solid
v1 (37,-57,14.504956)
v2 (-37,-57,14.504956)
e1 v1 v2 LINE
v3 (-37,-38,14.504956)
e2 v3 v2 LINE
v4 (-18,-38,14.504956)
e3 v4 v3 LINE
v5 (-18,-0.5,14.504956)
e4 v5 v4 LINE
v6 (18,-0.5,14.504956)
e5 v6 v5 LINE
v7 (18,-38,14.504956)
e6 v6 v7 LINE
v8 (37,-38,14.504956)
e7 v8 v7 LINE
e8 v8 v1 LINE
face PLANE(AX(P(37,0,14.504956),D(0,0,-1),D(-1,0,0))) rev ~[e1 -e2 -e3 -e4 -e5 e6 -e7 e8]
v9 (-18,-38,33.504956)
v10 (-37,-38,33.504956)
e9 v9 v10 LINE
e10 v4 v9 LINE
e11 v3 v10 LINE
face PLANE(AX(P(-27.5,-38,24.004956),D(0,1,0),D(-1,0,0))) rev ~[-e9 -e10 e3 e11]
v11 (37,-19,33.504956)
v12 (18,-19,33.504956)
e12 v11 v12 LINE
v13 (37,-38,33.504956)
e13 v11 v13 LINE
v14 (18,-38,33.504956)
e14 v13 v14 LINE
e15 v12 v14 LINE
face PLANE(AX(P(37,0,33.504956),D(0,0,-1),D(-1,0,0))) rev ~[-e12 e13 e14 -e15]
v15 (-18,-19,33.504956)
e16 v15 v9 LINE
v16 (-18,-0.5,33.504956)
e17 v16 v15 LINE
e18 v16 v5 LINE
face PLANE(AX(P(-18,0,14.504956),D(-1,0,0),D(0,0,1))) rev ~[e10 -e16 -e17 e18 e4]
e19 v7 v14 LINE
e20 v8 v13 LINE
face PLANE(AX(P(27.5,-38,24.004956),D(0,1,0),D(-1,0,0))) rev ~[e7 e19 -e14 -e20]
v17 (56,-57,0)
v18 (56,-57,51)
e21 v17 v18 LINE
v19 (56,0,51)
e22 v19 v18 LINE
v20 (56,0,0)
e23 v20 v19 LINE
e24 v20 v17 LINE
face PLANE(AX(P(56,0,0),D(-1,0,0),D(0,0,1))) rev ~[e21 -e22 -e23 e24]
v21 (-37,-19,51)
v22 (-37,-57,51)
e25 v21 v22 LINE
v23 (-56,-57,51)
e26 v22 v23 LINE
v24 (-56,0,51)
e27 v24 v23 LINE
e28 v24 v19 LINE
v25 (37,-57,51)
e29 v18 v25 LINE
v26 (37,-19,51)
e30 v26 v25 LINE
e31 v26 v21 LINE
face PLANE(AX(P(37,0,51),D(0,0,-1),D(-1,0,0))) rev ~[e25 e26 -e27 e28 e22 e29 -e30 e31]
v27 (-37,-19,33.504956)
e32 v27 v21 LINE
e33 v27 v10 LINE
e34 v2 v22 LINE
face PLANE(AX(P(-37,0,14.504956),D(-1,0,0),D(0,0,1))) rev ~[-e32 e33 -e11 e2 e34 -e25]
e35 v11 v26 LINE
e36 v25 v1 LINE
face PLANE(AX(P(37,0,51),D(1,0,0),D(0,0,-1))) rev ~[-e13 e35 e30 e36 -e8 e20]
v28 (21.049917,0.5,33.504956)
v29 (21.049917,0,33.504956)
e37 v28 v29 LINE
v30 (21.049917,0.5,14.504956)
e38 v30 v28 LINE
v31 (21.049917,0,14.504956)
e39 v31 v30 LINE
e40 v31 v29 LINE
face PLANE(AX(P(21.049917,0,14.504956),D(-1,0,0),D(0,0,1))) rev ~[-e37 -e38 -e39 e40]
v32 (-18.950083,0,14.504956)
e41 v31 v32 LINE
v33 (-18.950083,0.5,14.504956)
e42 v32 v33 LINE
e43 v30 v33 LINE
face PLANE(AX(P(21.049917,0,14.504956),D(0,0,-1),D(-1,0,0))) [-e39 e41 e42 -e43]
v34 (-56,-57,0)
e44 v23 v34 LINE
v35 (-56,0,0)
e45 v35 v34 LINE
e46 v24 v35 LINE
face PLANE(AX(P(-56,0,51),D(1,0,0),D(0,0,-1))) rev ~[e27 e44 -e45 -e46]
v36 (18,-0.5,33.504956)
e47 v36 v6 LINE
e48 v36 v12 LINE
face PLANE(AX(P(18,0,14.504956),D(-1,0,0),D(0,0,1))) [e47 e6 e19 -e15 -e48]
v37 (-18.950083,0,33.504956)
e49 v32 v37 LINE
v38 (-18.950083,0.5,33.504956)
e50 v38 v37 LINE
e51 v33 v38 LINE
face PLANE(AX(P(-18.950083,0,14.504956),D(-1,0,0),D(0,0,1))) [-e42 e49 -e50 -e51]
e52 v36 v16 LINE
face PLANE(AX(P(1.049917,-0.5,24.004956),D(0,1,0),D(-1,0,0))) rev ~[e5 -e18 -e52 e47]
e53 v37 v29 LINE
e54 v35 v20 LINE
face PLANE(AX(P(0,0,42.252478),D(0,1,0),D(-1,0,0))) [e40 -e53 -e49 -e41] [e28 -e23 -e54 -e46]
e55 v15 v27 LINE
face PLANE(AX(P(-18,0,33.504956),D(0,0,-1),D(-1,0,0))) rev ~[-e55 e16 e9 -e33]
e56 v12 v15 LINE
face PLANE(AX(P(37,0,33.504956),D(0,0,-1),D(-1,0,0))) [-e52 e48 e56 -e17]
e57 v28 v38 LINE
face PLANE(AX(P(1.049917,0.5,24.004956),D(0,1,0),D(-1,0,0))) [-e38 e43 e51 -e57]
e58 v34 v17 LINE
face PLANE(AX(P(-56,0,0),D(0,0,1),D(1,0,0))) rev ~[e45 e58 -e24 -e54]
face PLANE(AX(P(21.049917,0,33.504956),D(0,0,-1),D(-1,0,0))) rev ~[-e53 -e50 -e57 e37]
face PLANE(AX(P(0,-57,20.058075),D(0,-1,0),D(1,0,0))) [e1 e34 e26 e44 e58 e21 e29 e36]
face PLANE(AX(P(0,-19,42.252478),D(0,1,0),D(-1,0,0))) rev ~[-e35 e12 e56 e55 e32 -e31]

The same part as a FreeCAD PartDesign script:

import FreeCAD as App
import Part
import Sketcher
from FreeCAD import Vector
Q = App.Units.Quantity


def add_polygon(sketch, points):
    """Adds a closed chain of lines whose ends are joined by coincident constraints."""
    first, n = sketch.GeometryCount, len(points)
    for a, b in zip(points, points[1:] + points[:1]):
        sketch.addGeometry(Part.LineSegment(App.Vector(*a, 0), App.Vector(*b, 0)), False)
    for i in range(n):
        sketch.addConstraint(Sketcher.Constraint("Coincident", first + i, 2, first + (i + 1) % n, 1))

doc = App.newDocument("Part")
body = doc.addObject("PartDesign::Body", "Body")

# Sketch on XZ plane
sketch1 = body.newObject("Sketcher::SketchObject", "Sketch")
sketch1.AttachmentSupport = (doc.getObject("XZ_Plane"), [""])
sketch1.MapMode = "FlatFace"
add_polygon(sketch1, [(-56, 0), (56, 0), (56, 51), (37, 51), (37, 15), (-37, 15), (-37, 51), (-56, 51)])  # lines 0-7
sketch1.addConstraint(Sketcher.Constraint("Horizontal", 0))
sketch1.addConstraint(Sketcher.Constraint("Vertical", 1))
sketch1.addConstraint(Sketcher.Constraint("Horizontal", 2))
sketch1.addConstraint(Sketcher.Constraint("Vertical", 3))
sketch1.addConstraint(Sketcher.Constraint("Horizontal", 4))
sketch1.addConstraint(Sketcher.Constraint("Vertical", 5))
sketch1.addConstraint(Sketcher.Constraint("Horizontal", 6))
sketch1.addConstraint(Sketcher.Constraint("Vertical", 7))
sketch1.addConstraint(Sketcher.Constraint("Symmetric", 0, 2, 7, 2, -1, 1))
sketch1.addConstraint(Sketcher.Constraint("Symmetric", 2, 2, 5, 2, -2))
sketch1.addConstraint(Sketcher.Constraint("DistanceX", 0, 1, 0, 2, Q("112 mm")))
sketch1.addConstraint(Sketcher.Constraint("DistanceX", 2, 2, 2, 1, Q("19 mm")))
sketch1.addConstraint(Sketcher.Constraint("DistanceY", 1, 1, 1, 2, Q("51 mm")))
sketch1.addConstraint(Sketcher.Constraint("DistanceY", 3, 2, 3, 1, Q("36.495044 mm")))
pad1 = body.newObject("PartDesign::Pad", "Pad")
pad1.Profile = sketch1
pad1.Length = 57

# Sketch on XZ plane
sketch2 = body.newObject("Sketcher::SketchObject", "Sketch001")
sketch2.AttachmentSupport = (doc.getObject("XZ_Plane"), [""])
sketch2.MapMode = "FlatFace"
add_polygon(sketch2, [(-18, 34), (-18, 15), (-37, 15), (-37, 34)])  # lines 0-3
add_polygon(sketch2, [(37, 34), (37, 15), (18, 15), (18, 34)])  # lines 4-7
sketch2.addConstraint(Sketcher.Constraint("Vertical", 0))
sketch2.addConstraint(Sketcher.Constraint("Horizontal", 1))
sketch2.addConstraint(Sketcher.Constraint("Vertical", 2))
sketch2.addConstraint(Sketcher.Constraint("Horizontal", 3))
sketch2.addConstraint(Sketcher.Constraint("Vertical", 4))
sketch2.addConstraint(Sketcher.Constraint("Horizontal", 5))
sketch2.addConstraint(Sketcher.Constraint("Vertical", 6))
sketch2.addConstraint(Sketcher.Constraint("Horizontal", 7))
sketch2.addConstraint(Sketcher.Constraint("Symmetric", 1, 2, 4, 2, -2))
sketch2.addConstraint(Sketcher.Constraint("Symmetric", 3, 2, 6, 2, -2))
sketch2.addConstraint(Sketcher.Constraint("Equal", 7, 0))
sketch2.addConstraint(Sketcher.Constraint("DistanceX", 1, 2, 1, 1, Q("19 mm")))
sketch2.addConstraint(Sketcher.Constraint("DistanceX", 0, 2, -1, 1, Q("18 mm")))
sketch2.addConstraint(Sketcher.Constraint("DistanceY", -1, 1, 0, 2, Q("14.504956 mm")))
pad2 = body.newObject("PartDesign::Pad", "Pad001")
pad2.Profile = sketch2
pad2.Length = 38

# Sketch on XZ plane
sketch3 = body.newObject("Sketcher::SketchObject", "Sketch002")
sketch3.AttachmentSupport = (doc.getObject("XZ_Plane"), [""])
sketch3.MapMode = "FlatFace"
add_polygon(sketch3, [(37, 51), (37, 34), (-37, 34), (-37, 51)])  # lines 0-3
sketch3.addConstraint(Sketcher.Constraint("Vertical", 0))
sketch3.addConstraint(Sketcher.Constraint("Horizontal", 1))
sketch3.addConstraint(Sketcher.Constraint("Vertical", 2))
sketch3.addConstraint(Sketcher.Constraint("Horizontal", 3))
sketch3.addConstraint(Sketcher.Constraint("DistanceX", 1, 2, 1, 1, Q("74 mm")))
sketch3.addConstraint(Sketcher.Constraint("DistanceX", -1, 1, 0, 2, Q("37 mm")))
sketch3.addConstraint(Sketcher.Constraint("DistanceY", -1, 1, 2, 2, Q("51 mm")))
sketch3.addConstraint(Sketcher.Constraint("DistanceY", 0, 2, 0, 1, Q("17.495044 mm")))
pad3 = body.newObject("PartDesign::Pad", "Pad002")
pad3.Profile = sketch3
pad3.Length = 19

# Sketch on XZ plane
sketch4 = body.newObject("Sketcher::SketchObject", "Sketch003")
sketch4.AttachmentSupport = (doc.getObject("XZ_Plane"), [""])
sketch4.MapMode = "FlatFace"
add_polygon(sketch4, [(21, 34), (21, 15), (-19, 15), (-19, 34)])  # lines 0-3
sketch4.addConstraint(Sketcher.Constraint("Vertical", 0))
sketch4.addConstraint(Sketcher.Constraint("Horizontal", 1))
sketch4.addConstraint(Sketcher.Constraint("Vertical", 2))
sketch4.addConstraint(Sketcher.Constraint("Horizontal", 3))
sketch4.addConstraint(Sketcher.Constraint("DistanceX", 1, 2, 1, 1, Q("40 mm")))
sketch4.addConstraint(Sketcher.Constraint("DistanceY", 0, 2, 0, 1, Q("19 mm")))
sketch4.addConstraint(Sketcher.Constraint("DistanceX", -1, 1, 0, 2, Q("21.049917 mm")))
sketch4.addConstraint(Sketcher.Constraint("DistanceY", -1, 1, 0, 2, Q("14.504956 mm")))
pad4 = body.newObject("PartDesign::Pad", "Pad003")
pad4.Profile = sketch4
pad4.Length = 1
pad4.Midplane = True

doc.recompute()
